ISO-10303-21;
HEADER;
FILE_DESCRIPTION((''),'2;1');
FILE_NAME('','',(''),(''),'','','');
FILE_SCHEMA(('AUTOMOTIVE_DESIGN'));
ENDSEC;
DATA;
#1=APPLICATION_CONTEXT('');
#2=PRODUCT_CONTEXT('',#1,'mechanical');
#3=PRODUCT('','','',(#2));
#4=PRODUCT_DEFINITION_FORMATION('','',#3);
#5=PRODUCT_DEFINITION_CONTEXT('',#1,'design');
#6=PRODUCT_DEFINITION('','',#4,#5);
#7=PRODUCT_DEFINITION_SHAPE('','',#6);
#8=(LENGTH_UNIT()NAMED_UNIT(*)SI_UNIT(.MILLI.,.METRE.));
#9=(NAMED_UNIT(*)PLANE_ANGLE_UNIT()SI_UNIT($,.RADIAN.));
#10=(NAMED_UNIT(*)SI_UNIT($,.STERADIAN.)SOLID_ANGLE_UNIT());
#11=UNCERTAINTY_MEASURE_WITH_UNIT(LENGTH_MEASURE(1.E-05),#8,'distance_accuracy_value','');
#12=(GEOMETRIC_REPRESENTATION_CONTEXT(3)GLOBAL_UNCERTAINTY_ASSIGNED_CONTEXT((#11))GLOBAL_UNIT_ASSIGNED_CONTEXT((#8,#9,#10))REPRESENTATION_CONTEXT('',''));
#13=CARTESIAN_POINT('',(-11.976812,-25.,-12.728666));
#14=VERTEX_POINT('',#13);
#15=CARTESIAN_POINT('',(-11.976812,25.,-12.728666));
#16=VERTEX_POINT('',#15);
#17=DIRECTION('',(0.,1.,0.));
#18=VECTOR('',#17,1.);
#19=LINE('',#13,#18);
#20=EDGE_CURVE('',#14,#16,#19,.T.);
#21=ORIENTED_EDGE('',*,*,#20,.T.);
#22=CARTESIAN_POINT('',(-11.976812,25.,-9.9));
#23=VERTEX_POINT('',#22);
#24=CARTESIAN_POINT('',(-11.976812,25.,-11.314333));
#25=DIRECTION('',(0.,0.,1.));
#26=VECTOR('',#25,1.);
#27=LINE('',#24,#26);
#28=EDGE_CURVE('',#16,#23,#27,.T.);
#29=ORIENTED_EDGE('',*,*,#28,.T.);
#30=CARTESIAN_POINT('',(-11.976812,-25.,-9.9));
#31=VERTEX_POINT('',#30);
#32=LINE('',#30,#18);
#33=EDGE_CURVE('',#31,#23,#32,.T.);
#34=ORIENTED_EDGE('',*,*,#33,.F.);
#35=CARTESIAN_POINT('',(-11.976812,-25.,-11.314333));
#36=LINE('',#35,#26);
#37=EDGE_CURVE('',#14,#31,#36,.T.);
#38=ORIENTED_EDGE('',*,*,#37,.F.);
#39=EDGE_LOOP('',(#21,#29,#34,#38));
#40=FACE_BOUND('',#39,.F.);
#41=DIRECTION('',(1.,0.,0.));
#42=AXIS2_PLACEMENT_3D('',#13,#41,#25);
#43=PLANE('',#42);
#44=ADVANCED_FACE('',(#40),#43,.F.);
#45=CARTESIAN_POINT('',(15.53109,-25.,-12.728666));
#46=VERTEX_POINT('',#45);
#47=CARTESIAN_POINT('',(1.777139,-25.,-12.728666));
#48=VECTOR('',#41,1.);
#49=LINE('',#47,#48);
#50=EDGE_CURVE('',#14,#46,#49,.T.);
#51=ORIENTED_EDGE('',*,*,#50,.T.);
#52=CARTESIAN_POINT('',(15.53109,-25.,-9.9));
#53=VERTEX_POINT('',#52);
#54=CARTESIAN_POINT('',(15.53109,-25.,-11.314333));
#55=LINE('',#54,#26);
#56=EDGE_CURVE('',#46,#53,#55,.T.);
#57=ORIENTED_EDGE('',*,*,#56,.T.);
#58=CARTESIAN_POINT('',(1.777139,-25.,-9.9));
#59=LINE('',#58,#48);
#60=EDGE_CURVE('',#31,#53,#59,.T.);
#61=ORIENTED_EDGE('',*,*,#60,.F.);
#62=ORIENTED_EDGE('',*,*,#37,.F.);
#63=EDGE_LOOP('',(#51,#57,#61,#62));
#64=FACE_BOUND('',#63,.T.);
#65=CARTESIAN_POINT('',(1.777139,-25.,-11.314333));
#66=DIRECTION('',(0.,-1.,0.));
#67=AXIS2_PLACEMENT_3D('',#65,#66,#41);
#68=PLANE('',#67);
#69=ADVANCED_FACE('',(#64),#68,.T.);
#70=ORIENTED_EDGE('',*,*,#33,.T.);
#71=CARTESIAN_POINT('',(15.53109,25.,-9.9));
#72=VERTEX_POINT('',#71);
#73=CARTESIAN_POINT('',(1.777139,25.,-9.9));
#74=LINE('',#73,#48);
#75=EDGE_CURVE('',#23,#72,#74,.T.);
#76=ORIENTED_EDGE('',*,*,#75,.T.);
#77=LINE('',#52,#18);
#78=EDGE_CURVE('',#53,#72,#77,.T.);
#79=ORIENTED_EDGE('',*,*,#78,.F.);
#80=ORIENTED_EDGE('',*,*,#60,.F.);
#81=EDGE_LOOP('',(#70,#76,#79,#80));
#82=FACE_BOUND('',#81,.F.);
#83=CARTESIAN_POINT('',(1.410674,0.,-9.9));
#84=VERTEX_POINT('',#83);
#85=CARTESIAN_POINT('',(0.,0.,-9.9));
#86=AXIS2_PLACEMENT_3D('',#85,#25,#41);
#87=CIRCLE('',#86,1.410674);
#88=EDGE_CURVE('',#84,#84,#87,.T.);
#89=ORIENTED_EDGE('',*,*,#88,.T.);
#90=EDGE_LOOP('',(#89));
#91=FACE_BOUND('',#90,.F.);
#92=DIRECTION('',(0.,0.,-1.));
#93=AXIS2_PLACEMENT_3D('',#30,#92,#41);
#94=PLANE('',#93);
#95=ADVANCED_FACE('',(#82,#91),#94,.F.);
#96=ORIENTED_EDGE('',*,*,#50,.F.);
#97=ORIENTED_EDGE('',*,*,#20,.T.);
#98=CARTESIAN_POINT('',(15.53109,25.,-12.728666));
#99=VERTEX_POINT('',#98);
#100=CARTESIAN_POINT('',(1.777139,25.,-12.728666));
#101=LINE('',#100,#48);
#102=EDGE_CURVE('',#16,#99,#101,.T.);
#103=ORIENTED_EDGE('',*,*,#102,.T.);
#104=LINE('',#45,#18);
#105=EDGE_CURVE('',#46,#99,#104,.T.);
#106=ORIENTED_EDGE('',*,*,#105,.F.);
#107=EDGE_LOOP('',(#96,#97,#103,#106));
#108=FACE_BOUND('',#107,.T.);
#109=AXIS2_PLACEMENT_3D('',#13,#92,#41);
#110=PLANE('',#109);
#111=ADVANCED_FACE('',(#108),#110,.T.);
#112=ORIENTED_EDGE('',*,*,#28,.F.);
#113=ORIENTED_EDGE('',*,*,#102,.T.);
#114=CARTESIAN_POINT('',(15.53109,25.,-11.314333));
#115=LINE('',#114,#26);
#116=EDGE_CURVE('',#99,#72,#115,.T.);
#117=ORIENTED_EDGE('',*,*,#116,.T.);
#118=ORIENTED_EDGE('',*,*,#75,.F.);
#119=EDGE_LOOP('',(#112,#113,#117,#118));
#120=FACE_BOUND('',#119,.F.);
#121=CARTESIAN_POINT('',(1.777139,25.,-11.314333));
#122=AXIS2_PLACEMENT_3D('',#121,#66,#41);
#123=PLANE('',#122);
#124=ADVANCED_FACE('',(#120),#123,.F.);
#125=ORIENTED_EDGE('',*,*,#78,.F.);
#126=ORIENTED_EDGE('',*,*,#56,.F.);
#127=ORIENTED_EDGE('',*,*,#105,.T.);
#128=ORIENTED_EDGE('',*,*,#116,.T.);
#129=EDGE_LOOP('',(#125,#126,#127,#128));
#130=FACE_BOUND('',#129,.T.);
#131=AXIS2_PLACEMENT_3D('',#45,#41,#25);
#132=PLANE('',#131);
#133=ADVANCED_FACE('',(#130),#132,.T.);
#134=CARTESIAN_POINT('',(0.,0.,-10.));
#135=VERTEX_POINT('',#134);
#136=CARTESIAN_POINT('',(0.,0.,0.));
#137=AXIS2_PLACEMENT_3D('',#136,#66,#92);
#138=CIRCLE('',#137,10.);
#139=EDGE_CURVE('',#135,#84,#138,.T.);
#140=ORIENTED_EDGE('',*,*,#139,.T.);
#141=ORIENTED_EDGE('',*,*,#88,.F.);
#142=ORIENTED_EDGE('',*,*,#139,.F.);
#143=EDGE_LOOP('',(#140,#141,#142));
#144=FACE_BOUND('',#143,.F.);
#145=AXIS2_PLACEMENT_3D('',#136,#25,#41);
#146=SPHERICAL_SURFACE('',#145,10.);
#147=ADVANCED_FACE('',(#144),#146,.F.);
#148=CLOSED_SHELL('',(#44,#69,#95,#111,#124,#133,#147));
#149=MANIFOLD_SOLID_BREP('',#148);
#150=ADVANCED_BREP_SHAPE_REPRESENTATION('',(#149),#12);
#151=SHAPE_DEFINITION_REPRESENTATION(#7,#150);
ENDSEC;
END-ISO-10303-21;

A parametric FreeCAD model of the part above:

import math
import FreeCAD as App
import Part
import Sketcher
from FreeCAD import Vector
Q = App.Units.Quantity

doc = App.newDocument("Part")
body = doc.addObject("PartDesign::Body", "Body")

sketch1 = body.newObject("Sketcher::SketchObject", "Sketch")
sketch1.AttachmentSupport = (doc.getObject("XZ_Plane"), [""])
sketch1.MapMode = "FlatFace"
sketch1.addGeometry([
    Part.LineSegment(Vector(0, 10, 0), Vector(0, -10, 0)),
    Part.ArcOfCircle(Part.Circle(Vector(0, 0, 0), Vector(0, 0, 1), 10), math.radians(-90), math.radians(90)),
], False)
sketch1.addConstraint([
    Sketcher.Constraint("Coincident", 0, 1, 1, 2),
    Sketcher.Constraint("Coincident", 1, 1, 0, 2),
    Sketcher.Constraint("Vertical", 0),
    Sketcher.Constraint("Coincident", 1, 3, -1, 1),
    Sketcher.Constraint("PointOnObject", 0, 1, -2),
    Sketcher.Constraint("Radius", 1, Q("10 mm")),
])
revolution = body.newObject("PartDesign::Revolution", "Revolution")
revolution.Profile = sketch1
revolution.ReferenceAxis = (sketch1, ["V_Axis"])
revolution.Angle = 360
body2 = doc.addObject("PartDesign::Body", "Body001")

sketch2 = body2.newObject("Sketcher::SketchObject", "Sketch001")
sketch2.AttachmentSupport = (doc.getObject("XZ_Plane001"), [""])
sketch2.MapMode = "FlatFace"
sketch2.AttachmentOffset = App.Placement(Vector(0, 0, 25), App.Rotation())
sketch2.addGeometry([
    Part.LineSegment(Vector(-12, -9.9, 0), Vector(-12, -12.7, 0)),
    Part.LineSegment(Vector(-12, -12.7, 0), Vector(15.5, -12.7, 0)),
    Part.LineSegment(Vector(15.5, -12.7, 0), Vector(15.5, -9.9, 0)),
    Part.LineSegment(Vector(15.5, -9.9, 0), Vector(-12, -9.9, 0)),
], False)
sketch2.addConstraint([
    Sketcher.Constraint("Coincident", 0, 2, 1, 1),
    Sketcher.Constraint("Coincident", 1, 2, 2, 1),
    Sketcher.Constraint("Coincident", 2, 2, 3, 1),
    Sketcher.Constraint("Coincident", 3, 2, 0, 1),
    Sketcher.Constraint("Vertical", 0),
    Sketcher.Constraint("Horizontal", 1),
    Sketcher.Constraint("Vertical", 2),
    Sketcher.Constraint("Horizontal", 3),
    Sketcher.Constraint("DistanceY", 2, 2, -1, 1, Q("9.9 mm")),
    Sketcher.Constraint("DistanceX", 1, 1, 1, 2, Q("27.507902 mm")),
    Sketcher.Constraint("DistanceY", 0, 2, 0, 1, Q("2.828666 mm")),
    Sketcher.Constraint("DistanceX", -1, 1, 1, 2, Q("15.53109 mm")),
])
pad1 = body2.newObject("PartDesign::Pad", "Pad")
pad1.Profile = sketch2
pad1.Length = 50
pad1.Reversed = True
doc.recompute()

boolean = body2.newObject("PartDesign::Boolean", "Boolean")
boolean.Type = "Cut"
boolean.addObjects([body])

doc.recompute()
